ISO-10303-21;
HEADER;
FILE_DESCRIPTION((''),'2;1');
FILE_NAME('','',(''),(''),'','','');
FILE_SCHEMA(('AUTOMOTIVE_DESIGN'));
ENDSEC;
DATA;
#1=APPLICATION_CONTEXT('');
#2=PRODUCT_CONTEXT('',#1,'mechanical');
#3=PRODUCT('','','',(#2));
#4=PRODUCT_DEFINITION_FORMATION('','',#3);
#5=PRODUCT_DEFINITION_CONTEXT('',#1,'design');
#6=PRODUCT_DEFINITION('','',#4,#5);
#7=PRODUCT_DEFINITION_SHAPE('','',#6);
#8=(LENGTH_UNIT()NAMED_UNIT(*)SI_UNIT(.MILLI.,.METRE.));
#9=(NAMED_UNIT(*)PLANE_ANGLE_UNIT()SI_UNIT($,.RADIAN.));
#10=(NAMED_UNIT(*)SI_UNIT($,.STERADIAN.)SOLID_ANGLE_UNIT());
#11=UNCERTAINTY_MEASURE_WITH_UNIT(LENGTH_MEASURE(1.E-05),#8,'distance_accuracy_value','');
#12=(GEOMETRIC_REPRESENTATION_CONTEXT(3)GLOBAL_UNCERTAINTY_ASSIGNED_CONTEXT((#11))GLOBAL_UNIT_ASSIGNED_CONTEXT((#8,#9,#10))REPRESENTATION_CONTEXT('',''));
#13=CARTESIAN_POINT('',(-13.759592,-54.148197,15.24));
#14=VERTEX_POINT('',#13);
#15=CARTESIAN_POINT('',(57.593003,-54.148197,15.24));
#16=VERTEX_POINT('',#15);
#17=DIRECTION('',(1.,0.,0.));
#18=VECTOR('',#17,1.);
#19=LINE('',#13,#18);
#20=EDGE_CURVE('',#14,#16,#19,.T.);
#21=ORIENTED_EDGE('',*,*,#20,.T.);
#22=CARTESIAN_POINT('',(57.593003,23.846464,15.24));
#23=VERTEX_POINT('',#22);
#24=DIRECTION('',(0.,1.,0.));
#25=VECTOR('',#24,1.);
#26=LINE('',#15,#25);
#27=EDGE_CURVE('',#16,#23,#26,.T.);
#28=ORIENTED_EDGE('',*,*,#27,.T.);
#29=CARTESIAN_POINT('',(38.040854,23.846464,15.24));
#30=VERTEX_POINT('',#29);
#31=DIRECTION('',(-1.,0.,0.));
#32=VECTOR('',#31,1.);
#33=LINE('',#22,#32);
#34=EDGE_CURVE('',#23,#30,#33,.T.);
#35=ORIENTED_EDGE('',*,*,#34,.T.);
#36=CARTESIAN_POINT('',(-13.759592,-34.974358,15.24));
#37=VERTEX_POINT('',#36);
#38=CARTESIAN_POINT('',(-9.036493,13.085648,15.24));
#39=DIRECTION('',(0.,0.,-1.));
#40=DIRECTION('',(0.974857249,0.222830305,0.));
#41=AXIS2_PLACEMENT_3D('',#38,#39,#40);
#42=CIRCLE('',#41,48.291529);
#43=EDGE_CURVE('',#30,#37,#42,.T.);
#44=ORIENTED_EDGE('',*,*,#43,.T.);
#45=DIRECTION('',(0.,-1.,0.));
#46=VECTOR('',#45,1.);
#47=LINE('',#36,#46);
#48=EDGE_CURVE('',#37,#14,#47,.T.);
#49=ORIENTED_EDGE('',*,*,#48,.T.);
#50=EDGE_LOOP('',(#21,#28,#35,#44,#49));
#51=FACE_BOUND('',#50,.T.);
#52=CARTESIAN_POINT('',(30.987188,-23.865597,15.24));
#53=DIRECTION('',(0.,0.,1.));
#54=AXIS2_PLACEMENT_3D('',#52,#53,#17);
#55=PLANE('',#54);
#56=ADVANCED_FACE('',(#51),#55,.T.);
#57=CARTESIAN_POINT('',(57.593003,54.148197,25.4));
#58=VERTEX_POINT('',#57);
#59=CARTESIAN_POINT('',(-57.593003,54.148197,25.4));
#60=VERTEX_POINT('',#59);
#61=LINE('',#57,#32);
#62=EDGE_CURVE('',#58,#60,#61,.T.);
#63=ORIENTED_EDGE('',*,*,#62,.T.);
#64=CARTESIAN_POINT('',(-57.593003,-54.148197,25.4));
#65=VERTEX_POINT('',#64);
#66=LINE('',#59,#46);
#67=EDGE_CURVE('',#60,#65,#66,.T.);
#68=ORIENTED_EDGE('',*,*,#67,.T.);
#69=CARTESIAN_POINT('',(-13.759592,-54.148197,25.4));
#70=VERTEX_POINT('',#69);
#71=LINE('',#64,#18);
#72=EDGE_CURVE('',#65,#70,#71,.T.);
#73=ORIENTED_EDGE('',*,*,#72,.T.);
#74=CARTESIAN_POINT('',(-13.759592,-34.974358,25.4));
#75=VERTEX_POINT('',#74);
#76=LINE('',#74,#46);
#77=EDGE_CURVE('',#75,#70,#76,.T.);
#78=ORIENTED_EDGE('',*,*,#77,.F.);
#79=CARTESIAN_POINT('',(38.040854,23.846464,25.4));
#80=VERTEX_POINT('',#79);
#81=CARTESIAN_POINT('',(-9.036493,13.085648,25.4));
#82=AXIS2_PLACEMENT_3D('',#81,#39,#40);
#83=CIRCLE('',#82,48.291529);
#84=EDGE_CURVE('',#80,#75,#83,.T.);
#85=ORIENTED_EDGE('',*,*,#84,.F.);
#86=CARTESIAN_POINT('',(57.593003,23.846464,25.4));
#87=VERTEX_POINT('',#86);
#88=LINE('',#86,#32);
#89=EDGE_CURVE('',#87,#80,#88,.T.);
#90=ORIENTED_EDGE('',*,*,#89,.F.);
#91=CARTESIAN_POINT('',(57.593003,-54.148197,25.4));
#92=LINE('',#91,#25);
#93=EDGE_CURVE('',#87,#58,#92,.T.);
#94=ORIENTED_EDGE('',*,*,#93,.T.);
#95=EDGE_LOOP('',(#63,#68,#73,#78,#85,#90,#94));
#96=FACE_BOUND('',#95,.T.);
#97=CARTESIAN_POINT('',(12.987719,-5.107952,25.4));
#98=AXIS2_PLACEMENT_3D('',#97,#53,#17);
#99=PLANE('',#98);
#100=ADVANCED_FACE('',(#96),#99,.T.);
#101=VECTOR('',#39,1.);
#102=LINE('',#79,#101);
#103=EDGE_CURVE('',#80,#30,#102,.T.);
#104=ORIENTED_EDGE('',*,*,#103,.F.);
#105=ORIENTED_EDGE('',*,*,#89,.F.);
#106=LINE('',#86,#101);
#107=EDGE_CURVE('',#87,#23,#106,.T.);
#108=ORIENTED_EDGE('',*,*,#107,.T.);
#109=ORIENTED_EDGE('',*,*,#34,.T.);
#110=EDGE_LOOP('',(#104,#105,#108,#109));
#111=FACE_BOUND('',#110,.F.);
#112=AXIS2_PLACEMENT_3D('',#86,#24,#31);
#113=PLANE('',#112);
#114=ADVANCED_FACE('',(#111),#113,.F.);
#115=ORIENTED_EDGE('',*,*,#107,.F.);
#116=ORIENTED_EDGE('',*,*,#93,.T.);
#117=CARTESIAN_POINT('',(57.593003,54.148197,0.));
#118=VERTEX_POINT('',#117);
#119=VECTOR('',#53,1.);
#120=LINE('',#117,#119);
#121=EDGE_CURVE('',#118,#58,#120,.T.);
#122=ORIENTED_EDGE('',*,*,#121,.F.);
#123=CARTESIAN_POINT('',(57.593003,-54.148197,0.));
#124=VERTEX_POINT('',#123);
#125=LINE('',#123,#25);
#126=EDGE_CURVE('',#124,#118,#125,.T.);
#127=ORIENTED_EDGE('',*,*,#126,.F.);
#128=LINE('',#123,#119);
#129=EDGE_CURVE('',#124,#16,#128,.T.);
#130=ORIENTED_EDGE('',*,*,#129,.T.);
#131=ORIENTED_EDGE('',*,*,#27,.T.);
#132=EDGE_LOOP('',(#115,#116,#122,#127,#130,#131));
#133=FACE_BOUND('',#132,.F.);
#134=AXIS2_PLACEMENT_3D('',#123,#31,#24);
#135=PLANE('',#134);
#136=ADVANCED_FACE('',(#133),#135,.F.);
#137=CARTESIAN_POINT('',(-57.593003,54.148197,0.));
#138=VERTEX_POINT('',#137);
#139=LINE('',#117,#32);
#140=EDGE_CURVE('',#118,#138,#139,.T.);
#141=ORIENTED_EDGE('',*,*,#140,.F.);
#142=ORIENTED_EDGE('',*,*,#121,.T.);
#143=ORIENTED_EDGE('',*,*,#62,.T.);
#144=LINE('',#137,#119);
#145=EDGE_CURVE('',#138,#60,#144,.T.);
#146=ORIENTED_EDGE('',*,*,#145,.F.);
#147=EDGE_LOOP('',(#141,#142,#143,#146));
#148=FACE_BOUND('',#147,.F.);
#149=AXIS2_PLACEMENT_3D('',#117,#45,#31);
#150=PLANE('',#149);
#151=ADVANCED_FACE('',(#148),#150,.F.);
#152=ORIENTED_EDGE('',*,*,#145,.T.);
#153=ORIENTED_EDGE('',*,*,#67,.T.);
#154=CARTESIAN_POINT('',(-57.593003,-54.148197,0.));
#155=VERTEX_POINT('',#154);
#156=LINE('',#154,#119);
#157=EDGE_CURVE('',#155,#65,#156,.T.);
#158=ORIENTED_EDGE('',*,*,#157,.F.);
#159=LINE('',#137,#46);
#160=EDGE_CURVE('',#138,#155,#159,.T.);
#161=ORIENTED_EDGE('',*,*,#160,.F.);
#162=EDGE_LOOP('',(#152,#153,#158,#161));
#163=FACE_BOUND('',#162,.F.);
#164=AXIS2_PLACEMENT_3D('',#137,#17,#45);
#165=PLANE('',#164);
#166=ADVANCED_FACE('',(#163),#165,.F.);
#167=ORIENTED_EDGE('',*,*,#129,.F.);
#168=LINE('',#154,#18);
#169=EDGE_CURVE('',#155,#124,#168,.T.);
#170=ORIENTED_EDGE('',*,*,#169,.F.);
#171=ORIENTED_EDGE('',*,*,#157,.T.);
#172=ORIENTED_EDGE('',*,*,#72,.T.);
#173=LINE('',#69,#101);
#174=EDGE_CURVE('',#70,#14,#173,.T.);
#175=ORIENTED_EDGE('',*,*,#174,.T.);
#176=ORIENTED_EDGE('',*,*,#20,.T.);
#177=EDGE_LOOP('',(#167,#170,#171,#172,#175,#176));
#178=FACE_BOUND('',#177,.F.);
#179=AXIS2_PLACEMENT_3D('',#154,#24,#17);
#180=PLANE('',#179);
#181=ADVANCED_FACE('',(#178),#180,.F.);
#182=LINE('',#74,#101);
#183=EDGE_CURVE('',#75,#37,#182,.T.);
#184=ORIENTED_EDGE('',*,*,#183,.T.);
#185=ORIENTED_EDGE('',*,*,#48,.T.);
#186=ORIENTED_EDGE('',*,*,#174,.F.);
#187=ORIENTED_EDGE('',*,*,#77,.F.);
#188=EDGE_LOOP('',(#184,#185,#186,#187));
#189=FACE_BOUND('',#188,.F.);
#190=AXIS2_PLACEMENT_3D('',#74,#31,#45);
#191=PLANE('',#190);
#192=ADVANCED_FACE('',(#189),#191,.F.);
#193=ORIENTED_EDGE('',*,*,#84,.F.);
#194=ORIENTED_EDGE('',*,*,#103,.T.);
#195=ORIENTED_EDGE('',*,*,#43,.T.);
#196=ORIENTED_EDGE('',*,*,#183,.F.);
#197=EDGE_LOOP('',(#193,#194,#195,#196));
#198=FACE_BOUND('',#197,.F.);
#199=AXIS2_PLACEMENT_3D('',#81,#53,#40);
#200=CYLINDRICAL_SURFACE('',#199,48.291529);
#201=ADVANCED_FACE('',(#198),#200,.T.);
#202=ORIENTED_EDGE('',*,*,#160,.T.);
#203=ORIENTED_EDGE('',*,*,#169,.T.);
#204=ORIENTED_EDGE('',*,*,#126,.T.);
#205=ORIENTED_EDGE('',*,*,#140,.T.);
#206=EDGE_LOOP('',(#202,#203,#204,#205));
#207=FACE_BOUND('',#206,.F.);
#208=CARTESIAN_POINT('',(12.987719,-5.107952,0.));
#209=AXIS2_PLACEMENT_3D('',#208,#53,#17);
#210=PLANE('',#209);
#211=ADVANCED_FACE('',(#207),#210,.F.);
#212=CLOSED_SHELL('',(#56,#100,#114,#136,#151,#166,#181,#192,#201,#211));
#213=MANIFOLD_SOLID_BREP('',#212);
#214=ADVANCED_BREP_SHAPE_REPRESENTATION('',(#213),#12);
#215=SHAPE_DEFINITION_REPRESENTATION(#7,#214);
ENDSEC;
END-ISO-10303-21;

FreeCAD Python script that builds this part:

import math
import FreeCAD as App
import Part
import Sketcher
Q = App.Units.Quantity


def add_polygon(sketch, points):
    """Adds a closed chain of lines whose ends are joined by coincident constraints."""
    first, n = sketch.GeometryCount, len(points)
    for a, b in zip(points, points[1:] + points[:1]):
        sketch.addGeometry(Part.LineSegment(App.Vector(*a, 0), App.Vector(*b, 0)), False)
    for i in range(n):
        sketch.addConstraint(Sketcher.Constraint("Coincident", first + i, 2, first + (i + 1) % n, 1))

doc = App.newDocument("Part")
body = doc.addObject("PartDesign::Body", "Body")

# Sketch on XY plane
sketch1 = doc.addObject("Sketcher::SketchObject", "Sketch")
body.addObject(sketch1)
sketch1.AttachmentSupport = (doc.XY_Plane, [""])
sketch1.MapMode = "FlatFace"
add_polygon(sketch1, [(58, -54), (58, 54), (-58, 54), (-58, -54)])  # lines 0-3
sketch1.addConstraint(Sketcher.Constraint("Vertical", 0))
sketch1.addConstraint(Sketcher.Constraint("Horizontal", 1))
sketch1.addConstraint(Sketcher.Constraint("Vertical", 2))
sketch1.addConstraint(Sketcher.Constraint("Horizontal", 3))
sketch1.addConstraint(Sketcher.Constraint("Symmetric", 0, 2, 2, 2, -1, 1))
sketch1.addConstraint(Sketcher.Constraint("DistanceX", 1, 2, 1, 1, Q("115.186006 mm")))
sketch1.addConstraint(Sketcher.Constraint("DistanceY", 0, 1, 0, 2, Q("108.296394 mm")))
pad1 = doc.addObject("PartDesign::Pad", "Pad")
body.addObject(pad1)
pad1.Profile = sketch1
pad1.Length = Q("1 in")

# Sketch on XY plane
sketch2 = doc.addObject("Sketcher::SketchObject", "Sketch001")
body.addObject(sketch2)
sketch2.AttachmentSupport = (doc.XY_Plane, [""])
sketch2.MapMode = "FlatFace"
sketch2.AttachmentOffset = App.Placement(App.Vector(0, 0, 1 * 25.4), App.Rotation())
sketch2.addGeometry(Part.ArcOfCircle(Part.Circle(App.Vector(-9, 13, 0), App.Vector(0, 0, 1), 48), math.radians(-96), math.radians(13)), False)
sketch2.addGeometry(Part.LineSegment(App.Vector(-14, -35, 0), App.Vector(-14, -54, 0)), False)
sketch2.addGeometry(Part.LineSegment(App.Vector(-14, -54, 0), App.Vector(58, -54, 0)), False)
sketch2.addGeometry(Part.LineSegment(App.Vector(58, -54, 0), App.Vector(58, 24, 0)), False)
sketch2.addGeometry(Part.LineSegment(App.Vector(58, 24, 0), App.Vector(38, 24, 0)), False)
sketch2.addConstraint(Sketcher.Constraint("Coincident", 0, 1, 1, 1))
sketch2.addConstraint(Sketcher.Constraint("Coincident", 1, 2, 2, 1))
sketch2.addConstraint(Sketcher.Constraint("Coincident", 2, 2, 3, 1))
sketch2.addConstraint(Sketcher.Constraint("Coincident", 3, 2, 4, 1))
sketch2.addConstraint(Sketcher.Constraint("Coincident", 4, 2, 0, 2))
sketch2.addConstraint(Sketcher.Constraint("Vertical", 1))
sketch2.addConstraint(Sketcher.Constraint("Horizontal", 2))
sketch2.addConstraint(Sketcher.Constraint("Vertical", 3))
sketch2.addConstraint(Sketcher.Constraint("Horizontal", 4))
sketch2.addConstraint(Sketcher.Constraint("Radius", 0, Q("48.291529 mm")))
sketch2.addConstraint(Sketcher.Constraint("DistanceX", 4, 2, 4, 1, Q("19.552149 mm")))
sketch2.addConstraint(Sketcher.Constraint("DistanceY", 1, 2, 1, 1, Q("19.173839 mm")))
sketch2.addConstraint(Sketcher.Constraint("DistanceY", 3, 1, 3, 2, Q("77.994661 mm")))
sketch2.addConstraint(Sketcher.Constraint("DistanceX", 0, 1, 0, 3, Q("4.723099 mm")))
sketch2.addConstraint(Sketcher.Constraint("DistanceY", 0, 1, -1, 1, Q("34.974358 mm")))
sketch2.addConstraint(Sketcher.Constraint("DistanceX", 0, 3, -1, 1, Q("9.036493 mm")))
pocket1 = doc.addObject("PartDesign::Pocket", "Pocket")
body.addObject(pocket1)
pocket1.Profile = sketch2
pocket1.Length = Q("0.4 in")

doc.recompute()
